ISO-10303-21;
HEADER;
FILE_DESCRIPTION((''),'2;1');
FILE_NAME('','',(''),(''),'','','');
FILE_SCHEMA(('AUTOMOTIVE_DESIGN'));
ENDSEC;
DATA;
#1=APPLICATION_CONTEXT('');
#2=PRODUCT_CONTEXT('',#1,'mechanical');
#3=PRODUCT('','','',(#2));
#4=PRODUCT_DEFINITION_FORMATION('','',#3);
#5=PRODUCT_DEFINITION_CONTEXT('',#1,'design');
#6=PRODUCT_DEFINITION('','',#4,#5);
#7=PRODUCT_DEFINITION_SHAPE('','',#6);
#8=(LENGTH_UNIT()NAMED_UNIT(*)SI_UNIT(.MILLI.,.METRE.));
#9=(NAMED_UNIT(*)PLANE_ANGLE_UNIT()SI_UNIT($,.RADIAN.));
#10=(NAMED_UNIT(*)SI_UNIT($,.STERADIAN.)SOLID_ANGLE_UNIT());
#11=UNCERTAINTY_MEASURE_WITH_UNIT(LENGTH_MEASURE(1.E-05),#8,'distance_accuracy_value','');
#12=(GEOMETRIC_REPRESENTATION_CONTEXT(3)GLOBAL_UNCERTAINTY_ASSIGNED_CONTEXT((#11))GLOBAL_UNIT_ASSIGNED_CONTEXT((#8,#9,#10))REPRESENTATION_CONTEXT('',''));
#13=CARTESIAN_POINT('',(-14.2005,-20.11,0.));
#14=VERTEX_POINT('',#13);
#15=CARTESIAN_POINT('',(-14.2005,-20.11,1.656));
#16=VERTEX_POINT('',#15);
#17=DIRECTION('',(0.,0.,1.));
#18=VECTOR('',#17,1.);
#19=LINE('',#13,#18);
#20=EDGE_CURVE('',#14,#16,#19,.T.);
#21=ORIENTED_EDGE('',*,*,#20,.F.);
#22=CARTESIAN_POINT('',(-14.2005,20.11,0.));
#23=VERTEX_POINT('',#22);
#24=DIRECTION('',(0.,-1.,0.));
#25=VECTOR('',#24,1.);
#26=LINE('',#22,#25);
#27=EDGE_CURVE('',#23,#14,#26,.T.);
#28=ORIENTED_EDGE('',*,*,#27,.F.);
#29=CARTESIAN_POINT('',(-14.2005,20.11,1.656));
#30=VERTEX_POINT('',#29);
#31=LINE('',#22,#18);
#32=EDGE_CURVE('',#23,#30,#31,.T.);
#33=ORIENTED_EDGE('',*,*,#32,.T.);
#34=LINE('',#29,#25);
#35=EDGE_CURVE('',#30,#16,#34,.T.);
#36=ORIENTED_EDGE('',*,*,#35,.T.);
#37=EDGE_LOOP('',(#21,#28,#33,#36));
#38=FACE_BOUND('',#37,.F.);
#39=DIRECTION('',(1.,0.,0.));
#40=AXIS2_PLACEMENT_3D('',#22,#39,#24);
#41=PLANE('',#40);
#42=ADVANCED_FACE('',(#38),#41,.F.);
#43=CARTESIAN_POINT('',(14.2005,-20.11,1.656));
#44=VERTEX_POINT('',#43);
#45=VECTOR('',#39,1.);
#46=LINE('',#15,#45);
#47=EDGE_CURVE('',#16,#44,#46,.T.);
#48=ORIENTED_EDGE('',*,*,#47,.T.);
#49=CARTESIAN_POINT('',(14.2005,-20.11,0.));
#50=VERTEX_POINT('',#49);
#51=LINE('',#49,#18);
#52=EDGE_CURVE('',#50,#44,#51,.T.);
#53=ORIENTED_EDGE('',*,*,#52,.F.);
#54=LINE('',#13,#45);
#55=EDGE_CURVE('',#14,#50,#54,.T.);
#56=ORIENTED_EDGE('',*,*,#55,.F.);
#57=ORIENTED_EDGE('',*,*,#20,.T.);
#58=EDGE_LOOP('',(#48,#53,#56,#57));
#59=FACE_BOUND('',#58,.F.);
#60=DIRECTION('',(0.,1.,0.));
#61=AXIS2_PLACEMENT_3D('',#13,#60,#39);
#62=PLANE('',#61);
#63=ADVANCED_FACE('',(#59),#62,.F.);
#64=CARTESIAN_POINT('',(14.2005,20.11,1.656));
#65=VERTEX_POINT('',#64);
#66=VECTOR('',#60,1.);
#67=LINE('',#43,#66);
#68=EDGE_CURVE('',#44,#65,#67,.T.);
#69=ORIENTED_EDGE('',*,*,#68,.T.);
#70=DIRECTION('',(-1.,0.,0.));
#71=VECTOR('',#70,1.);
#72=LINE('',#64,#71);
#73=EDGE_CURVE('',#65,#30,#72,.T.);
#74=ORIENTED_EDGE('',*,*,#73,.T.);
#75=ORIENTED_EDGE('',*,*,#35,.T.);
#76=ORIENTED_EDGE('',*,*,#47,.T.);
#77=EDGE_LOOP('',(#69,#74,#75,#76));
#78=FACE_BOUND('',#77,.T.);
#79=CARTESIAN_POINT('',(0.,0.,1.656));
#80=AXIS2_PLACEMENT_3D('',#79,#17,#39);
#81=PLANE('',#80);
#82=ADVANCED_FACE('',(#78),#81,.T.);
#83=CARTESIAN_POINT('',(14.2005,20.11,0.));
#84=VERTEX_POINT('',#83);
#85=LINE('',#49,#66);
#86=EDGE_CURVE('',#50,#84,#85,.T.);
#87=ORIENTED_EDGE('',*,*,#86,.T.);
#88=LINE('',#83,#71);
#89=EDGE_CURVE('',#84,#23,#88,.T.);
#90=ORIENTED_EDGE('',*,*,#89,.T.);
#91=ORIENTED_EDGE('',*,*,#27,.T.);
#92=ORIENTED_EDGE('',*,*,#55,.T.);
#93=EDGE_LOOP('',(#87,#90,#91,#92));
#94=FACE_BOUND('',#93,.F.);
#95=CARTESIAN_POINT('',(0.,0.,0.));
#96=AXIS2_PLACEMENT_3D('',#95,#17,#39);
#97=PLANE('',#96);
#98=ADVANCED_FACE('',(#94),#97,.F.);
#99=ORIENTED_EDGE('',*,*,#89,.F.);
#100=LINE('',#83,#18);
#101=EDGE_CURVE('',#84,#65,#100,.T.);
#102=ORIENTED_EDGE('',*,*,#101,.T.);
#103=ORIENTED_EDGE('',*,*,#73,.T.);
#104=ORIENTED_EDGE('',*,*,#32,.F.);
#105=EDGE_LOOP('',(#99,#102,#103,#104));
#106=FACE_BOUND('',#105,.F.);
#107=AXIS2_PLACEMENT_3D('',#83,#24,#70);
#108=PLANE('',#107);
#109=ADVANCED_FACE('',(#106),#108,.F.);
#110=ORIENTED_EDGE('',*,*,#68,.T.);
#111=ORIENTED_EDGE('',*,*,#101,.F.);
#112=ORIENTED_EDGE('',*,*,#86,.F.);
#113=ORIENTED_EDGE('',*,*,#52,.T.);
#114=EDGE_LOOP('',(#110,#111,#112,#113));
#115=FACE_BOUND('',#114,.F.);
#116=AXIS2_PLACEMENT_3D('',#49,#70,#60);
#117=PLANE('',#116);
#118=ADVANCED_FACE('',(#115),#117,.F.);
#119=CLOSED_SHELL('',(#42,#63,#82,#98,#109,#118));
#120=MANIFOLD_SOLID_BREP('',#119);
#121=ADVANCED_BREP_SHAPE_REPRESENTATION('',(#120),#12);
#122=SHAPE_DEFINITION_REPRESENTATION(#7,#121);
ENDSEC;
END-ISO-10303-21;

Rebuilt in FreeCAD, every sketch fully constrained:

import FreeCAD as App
import Part
import Sketcher
from FreeCAD import Vector


def add_polygon(sketch, points):
    """Adds a closed chain of lines whose ends are joined by coincident constraints."""
    first, n = sketch.GeometryCount, len(points)
    for a, b in zip(points, points[1:] + points[:1]):
        sketch.addGeometry(Part.LineSegment(App.Vector(*a, 0), App.Vector(*b, 0)), False)
    for i in range(n):
        sketch.addConstraint(Sketcher.Constraint("Coincident", first + i, 2, first + (i + 1) % n, 1))

doc = App.newDocument("Part")
body = doc.addObject("PartDesign::Body", "Body")

sketch1 = doc.addObject("Sketcher::SketchObject", "Sketch")
body.addObject(sketch1)
sketch1.AttachmentSupport = (doc.XY_Plane, [""])
sketch1.MapMode = "FlatFace"
add_polygon(sketch1, [(-14, 20), (-14, -20), (14, -20), (14, 20)])
sketch1.addConstraint([
    Sketcher.Constraint("Vertical", 0),
    Sketcher.Constraint("Horizontal", 1),
    Sketcher.Constraint("Vertical", 2),
    Sketcher.Constraint("Horizontal", 3),
    Sketcher.Constraint("Symmetric", 0, 2, 2, 2, -1, 1),
    Sketcher.Constraint("DistanceY", 0, 2, 0, 1, 40.22),
    Sketcher.Constraint("DistanceX", 1, 1, 1, 2, 28.401),
])
pad1 = doc.addObject("PartDesign::Pad", "Pad")
body.addObject(pad1)
pad1.Profile = sketch1
pad1.Length = 1.656

doc.recompute()
